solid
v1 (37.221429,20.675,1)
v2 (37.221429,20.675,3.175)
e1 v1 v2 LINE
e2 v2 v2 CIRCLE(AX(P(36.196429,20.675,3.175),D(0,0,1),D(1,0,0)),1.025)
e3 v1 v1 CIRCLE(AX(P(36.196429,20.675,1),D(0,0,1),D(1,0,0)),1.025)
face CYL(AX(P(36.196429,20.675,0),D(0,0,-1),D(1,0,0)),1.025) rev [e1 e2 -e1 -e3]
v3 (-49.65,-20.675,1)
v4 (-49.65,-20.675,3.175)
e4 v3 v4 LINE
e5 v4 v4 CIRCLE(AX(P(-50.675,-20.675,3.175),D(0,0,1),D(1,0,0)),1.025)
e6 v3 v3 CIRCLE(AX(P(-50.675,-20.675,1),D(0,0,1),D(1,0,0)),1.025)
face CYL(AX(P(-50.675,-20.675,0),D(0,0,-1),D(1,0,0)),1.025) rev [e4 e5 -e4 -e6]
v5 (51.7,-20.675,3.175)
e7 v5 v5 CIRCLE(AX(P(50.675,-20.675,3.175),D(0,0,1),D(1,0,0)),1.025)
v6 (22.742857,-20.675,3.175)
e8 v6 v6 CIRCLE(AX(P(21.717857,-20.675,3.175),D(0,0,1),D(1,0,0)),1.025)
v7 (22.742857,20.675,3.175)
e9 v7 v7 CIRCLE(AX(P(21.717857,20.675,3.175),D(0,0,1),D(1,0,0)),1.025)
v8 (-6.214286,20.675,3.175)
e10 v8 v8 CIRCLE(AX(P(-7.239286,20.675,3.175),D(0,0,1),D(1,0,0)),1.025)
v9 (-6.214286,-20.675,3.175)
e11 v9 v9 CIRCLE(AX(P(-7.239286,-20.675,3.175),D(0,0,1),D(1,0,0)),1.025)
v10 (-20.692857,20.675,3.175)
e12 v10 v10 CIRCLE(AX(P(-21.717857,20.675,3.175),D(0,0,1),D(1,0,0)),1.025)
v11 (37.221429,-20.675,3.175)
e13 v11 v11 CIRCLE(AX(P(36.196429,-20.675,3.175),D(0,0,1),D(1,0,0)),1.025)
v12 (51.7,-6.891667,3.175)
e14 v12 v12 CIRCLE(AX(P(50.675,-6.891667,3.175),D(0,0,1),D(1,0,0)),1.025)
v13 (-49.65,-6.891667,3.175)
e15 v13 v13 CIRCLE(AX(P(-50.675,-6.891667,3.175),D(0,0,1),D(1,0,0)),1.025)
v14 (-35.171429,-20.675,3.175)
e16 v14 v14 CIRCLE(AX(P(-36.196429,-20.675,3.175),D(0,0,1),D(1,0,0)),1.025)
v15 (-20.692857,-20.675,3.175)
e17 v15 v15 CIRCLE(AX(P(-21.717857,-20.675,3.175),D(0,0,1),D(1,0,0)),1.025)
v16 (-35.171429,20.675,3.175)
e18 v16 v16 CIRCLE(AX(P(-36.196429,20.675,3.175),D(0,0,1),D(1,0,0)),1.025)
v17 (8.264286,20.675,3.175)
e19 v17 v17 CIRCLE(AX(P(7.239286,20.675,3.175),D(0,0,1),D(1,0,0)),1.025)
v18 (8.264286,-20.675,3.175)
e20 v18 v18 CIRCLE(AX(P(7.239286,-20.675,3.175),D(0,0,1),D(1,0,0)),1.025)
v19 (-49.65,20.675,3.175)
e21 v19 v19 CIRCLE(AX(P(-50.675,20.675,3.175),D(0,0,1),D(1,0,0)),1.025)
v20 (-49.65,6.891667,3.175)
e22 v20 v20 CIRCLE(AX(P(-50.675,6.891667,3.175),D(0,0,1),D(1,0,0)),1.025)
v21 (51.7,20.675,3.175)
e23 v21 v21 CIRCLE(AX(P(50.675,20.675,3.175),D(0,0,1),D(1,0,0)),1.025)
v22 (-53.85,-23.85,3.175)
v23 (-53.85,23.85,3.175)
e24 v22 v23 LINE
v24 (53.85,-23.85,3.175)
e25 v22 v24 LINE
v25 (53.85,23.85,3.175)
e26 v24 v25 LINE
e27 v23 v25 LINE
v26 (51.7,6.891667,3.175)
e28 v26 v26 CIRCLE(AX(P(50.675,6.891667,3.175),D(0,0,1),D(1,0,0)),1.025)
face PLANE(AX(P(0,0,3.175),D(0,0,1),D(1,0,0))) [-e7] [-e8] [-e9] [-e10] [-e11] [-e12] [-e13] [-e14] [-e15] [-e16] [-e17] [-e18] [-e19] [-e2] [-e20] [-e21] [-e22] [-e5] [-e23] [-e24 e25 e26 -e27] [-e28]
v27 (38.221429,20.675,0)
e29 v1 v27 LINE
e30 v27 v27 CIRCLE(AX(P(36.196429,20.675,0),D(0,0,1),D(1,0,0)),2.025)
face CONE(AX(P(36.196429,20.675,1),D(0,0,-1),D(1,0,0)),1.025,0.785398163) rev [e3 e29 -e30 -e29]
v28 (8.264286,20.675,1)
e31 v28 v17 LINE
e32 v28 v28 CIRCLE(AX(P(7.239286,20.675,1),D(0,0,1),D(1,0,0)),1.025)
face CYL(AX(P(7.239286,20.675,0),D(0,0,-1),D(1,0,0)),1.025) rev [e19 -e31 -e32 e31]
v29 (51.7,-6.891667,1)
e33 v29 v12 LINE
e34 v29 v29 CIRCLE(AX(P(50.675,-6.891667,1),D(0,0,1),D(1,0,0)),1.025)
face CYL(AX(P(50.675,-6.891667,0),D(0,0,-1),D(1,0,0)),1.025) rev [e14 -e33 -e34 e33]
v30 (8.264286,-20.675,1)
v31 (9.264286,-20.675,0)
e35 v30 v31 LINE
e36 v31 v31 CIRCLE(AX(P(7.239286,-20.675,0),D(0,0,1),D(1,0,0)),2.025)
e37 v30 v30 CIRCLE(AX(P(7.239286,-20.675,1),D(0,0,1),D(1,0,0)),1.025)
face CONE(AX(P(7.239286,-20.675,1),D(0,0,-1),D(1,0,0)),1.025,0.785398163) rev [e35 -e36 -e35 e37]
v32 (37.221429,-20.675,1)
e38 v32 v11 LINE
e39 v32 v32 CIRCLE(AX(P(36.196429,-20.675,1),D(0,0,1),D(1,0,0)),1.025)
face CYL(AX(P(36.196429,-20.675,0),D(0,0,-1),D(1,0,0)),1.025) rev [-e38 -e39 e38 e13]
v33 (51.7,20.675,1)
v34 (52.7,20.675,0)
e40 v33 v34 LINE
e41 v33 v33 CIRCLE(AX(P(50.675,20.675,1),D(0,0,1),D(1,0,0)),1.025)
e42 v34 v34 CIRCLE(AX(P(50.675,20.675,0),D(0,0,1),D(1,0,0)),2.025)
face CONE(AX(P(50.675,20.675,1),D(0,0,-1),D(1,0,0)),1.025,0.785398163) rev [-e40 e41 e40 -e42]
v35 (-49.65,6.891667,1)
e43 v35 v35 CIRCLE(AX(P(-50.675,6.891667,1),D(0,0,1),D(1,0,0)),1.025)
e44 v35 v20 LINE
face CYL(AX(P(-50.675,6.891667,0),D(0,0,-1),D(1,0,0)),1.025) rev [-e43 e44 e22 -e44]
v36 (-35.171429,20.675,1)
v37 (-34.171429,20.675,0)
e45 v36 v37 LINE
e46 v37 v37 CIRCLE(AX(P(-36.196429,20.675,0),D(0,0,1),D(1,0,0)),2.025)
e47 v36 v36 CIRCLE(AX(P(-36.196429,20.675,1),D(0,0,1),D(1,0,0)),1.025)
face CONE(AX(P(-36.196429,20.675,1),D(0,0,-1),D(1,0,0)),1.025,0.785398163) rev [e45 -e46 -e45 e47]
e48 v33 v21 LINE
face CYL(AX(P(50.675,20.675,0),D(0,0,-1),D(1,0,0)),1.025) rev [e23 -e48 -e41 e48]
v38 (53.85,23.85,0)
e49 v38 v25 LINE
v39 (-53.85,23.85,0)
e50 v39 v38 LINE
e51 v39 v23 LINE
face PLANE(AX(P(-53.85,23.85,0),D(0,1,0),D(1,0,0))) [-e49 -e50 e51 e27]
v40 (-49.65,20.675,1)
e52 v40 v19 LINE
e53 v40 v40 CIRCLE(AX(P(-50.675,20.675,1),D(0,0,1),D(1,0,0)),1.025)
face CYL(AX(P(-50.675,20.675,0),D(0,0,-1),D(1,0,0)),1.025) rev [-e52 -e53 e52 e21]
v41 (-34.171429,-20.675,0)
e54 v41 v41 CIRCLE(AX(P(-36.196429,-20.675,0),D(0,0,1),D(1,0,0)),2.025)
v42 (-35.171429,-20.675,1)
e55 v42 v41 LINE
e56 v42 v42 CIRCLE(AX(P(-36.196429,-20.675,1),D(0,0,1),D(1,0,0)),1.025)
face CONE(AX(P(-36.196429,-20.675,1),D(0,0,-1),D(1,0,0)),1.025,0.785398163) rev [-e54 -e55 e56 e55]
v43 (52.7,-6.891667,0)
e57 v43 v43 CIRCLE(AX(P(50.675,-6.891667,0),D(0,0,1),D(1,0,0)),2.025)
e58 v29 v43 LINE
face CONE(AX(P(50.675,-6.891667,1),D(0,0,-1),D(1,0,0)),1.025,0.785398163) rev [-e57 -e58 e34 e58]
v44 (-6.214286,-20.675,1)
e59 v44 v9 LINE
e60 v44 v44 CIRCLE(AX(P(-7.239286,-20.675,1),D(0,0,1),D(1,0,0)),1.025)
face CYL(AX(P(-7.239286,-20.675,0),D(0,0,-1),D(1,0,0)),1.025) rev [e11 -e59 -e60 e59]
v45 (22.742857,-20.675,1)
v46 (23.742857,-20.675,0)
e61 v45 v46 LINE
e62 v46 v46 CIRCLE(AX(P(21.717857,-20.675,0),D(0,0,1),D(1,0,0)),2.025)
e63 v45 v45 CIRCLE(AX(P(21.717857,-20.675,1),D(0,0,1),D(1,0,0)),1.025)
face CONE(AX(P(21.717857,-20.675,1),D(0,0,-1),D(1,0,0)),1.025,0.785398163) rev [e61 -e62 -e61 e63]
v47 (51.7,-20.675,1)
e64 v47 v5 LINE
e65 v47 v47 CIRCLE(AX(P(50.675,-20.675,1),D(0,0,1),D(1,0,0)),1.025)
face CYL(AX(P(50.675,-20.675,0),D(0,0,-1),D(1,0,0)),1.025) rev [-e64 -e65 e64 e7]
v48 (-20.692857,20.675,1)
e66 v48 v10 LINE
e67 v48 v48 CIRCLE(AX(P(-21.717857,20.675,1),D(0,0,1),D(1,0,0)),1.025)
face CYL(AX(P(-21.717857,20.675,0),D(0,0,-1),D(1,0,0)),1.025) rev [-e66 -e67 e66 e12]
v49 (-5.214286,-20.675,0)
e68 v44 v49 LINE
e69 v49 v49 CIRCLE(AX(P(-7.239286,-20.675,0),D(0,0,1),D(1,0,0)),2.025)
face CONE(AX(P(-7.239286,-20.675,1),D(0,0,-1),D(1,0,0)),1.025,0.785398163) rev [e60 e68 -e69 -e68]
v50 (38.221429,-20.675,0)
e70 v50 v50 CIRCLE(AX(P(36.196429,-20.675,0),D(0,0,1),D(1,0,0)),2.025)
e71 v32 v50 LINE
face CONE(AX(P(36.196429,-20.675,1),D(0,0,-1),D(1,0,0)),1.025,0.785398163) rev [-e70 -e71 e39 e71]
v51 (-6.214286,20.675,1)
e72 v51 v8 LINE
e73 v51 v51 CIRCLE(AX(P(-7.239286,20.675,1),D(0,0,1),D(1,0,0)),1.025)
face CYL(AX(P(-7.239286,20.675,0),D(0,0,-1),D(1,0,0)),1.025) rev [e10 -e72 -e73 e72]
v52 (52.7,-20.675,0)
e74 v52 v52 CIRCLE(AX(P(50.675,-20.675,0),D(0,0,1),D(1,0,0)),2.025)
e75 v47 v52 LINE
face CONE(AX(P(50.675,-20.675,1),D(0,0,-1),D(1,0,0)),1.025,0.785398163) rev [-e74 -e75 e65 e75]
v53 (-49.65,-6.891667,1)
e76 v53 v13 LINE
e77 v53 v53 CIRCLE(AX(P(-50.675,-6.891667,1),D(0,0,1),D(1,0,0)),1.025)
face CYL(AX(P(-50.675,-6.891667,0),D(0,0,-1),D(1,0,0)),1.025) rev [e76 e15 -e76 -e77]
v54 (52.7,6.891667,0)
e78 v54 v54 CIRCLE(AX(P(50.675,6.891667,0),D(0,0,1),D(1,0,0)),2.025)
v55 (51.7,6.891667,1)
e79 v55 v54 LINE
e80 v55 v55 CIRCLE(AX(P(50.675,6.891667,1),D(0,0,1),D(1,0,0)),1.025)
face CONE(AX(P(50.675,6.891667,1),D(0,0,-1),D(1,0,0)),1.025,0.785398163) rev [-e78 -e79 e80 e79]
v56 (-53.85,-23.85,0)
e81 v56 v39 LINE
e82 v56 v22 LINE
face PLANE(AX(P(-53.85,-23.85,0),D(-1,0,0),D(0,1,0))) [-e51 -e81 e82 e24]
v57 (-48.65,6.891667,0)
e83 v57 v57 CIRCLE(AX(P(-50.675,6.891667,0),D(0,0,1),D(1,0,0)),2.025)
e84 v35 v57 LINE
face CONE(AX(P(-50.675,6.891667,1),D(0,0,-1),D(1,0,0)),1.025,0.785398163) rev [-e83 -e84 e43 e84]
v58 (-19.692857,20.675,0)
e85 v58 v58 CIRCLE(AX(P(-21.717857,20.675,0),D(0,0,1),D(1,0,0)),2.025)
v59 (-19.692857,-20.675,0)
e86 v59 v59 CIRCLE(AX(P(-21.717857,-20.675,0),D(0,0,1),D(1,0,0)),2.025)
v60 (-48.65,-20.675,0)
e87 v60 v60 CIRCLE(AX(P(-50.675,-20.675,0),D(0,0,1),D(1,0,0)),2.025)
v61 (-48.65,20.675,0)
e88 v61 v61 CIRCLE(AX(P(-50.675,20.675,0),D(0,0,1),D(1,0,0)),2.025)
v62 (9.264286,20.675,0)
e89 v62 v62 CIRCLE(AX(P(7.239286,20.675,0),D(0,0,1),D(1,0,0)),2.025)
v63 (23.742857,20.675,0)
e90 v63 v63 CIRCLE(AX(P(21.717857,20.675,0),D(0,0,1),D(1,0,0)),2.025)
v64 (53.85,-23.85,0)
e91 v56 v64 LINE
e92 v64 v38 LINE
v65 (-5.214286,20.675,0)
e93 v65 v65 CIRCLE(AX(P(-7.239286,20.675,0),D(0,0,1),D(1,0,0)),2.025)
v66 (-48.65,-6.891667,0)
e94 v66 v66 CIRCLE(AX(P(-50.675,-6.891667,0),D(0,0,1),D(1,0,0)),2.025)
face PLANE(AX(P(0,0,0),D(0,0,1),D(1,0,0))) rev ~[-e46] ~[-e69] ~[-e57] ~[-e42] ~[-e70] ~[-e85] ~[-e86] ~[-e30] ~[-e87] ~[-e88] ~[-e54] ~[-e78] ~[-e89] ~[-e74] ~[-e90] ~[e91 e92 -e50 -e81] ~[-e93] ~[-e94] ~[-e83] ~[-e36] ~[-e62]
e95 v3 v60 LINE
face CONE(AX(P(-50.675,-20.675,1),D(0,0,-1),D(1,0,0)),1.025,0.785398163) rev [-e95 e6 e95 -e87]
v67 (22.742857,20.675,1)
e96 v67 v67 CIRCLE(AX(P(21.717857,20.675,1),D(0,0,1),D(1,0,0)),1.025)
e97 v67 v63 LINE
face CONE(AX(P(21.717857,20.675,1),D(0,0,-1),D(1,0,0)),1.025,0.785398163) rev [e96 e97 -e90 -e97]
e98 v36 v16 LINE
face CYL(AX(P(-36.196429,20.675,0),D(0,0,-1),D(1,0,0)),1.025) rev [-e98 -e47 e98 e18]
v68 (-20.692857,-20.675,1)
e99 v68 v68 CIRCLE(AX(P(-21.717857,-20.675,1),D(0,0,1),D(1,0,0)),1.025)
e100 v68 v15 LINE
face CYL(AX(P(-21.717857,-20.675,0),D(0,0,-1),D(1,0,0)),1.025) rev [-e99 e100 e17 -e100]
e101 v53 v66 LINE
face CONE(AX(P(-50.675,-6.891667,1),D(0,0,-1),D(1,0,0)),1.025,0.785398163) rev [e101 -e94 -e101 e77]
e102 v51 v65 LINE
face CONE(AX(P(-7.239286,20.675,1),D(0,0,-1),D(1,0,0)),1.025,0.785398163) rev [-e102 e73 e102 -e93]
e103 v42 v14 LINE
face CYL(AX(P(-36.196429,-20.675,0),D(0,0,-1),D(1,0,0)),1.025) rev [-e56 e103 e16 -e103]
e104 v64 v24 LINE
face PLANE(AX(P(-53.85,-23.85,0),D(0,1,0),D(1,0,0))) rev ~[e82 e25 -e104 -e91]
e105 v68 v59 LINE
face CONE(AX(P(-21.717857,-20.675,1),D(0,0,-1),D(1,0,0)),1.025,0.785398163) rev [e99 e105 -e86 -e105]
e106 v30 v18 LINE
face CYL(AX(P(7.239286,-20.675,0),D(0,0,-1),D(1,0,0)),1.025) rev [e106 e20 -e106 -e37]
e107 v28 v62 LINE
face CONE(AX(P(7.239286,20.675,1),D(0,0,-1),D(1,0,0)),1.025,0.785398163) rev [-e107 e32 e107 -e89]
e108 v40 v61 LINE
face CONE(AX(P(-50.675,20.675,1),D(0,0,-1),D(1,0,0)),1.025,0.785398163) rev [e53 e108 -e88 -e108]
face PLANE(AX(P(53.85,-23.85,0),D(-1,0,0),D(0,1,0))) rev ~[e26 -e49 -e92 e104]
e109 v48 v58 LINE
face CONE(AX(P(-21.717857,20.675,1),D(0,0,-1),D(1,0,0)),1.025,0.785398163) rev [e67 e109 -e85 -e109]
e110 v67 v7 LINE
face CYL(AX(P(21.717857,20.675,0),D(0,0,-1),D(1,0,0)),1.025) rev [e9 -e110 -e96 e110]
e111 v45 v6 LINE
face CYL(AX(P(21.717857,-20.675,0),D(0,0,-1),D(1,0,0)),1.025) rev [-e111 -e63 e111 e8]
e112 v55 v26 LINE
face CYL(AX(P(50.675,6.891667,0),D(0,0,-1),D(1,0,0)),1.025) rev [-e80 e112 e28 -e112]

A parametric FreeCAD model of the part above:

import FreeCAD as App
import Part
import Sketcher

V = App.Vector
Q = App.Units.Quantity


def edges_at(feature, points):
    """Names of the edges that pass closest to the given points."""
    edges = feature.Shape.Edges
    near = lambda p: min(range(len(edges)), key=lambda i: edges[i].distToShape(Part.Vertex(*p))[0])
    return sorted({f"Edge{near(p) + 1}" for p in points})


def add_polygon(sketch, points):
    """Adds a closed chain of lines whose ends are joined by coincident constraints."""
    first, n = sketch.GeometryCount, len(points)
    for a, b in zip(points, points[1:] + points[:1]):
        sketch.addGeometry(Part.LineSegment(App.Vector(*a, 0), App.Vector(*b, 0)), False)
    for i in range(n):
        sketch.addConstraint(Sketcher.Constraint("Coincident", first + i, 2, first + (i + 1) % n, 1))

doc = App.newDocument("Part")
body = doc.addObject("PartDesign::Body", "Body")

# Sketch on XY plane
sketch1 = doc.addObject("Sketcher::SketchObject", "Sketch")
body.addObject(sketch1)
sketch1.AttachmentSupport = (doc.XY_Plane, [""])
sketch1.MapMode = "FlatFace"
add_polygon(sketch1, [(-53.9, 23.9), (-53.9, -23.9), (53.9, -23.9), (53.9, 23.9)])  # lines 0-3
sketch1.addGeometry(Part.Circle(V(-50.7, -20.7, 0), V(0, 0, 1), 1), False)  # 4
sketch1.addGeometry(Part.Circle(V(-36.2, -20.7, 0), V(0, 0, 1), 1), False)  # 5
sketch1.addGeometry(Part.Circle(V(-21.7, -20.7, 0), V(0, 0, 1), 1), False)  # 6
sketch1.addGeometry(Part.Circle(V(-7.2, -20.7, 0), V(0, 0, 1), 1), False)  # 7
sketch1.addGeometry(Part.Circle(V(-50.7, -6.9, 0), V(0, 0, 1), 1), False)  # 8
sketch1.addGeometry(Part.Circle(V(7.2, -20.7, 0), V(0, 0, 1), 1), False)  # 9
sketch1.addGeometry(Part.Circle(V(21.7, -20.7, 0), V(0, 0, 1), 1), False)  # 10
sketch1.addGeometry(Part.Circle(V(36.2, -20.7, 0), V(0, 0, 1), 1), False)  # 11
sketch1.addGeometry(Part.Circle(V(50.7, -20.7, 0), V(0, 0, 1), 1), False)  # 12
sketch1.addGeometry(Part.Circle(V(50.7, -6.9, 0), V(0, 0, 1), 1), False)  # 13
sketch1.addGeometry(Part.Circle(V(-50.7, 6.9, 0), V(0, 0, 1), 1), False)  # 14
sketch1.addGeometry(Part.Circle(V(-50.7, 20.7, 0), V(0, 0, 1), 1), False)  # 15
sketch1.addGeometry(Part.Circle(V(-36.2, 20.7, 0), V(0, 0, 1), 1), False)  # 16
sketch1.addGeometry(Part.Circle(V(-21.7, 20.7, 0), V(0, 0, 1), 1), False)  # 17
sketch1.addGeometry(Part.Circle(V(-7.2, 20.7, 0), V(0, 0, 1), 1), False)  # 18
sketch1.addGeometry(Part.Circle(V(50.7, 6.9, 0), V(0, 0, 1), 1), False)  # 19
sketch1.addGeometry(Part.Circle(V(7.2, 20.7, 0), V(0, 0, 1), 1), False)  # 20
sketch1.addGeometry(Part.Circle(V(21.7, 20.7, 0), V(0, 0, 1), 1), False)  # 21
sketch1.addGeometry(Part.Circle(V(36.2, 20.7, 0), V(0, 0, 1), 1), False)  # 22
sketch1.addGeometry(Part.Circle(V(50.7, 20.7, 0), V(0, 0, 1), 1), False)  # 23
sketch1.addConstraint([
    Sketcher.Constraint("Vertical", 0),
    Sketcher.Constraint("Horizontal", 1),
    Sketcher.Constraint("Vertical", 2),
    Sketcher.Constraint("Horizontal", 3),
    Sketcher.Constraint("Equal", 4, 5),
    Sketcher.Constraint("Equal", 5, 6),
    Sketcher.Constraint("Equal", 6, 7),
    Sketcher.Constraint("Equal", 7, 8),
    Sketcher.Constraint("Equal", 8, 9),
    Sketcher.Constraint("Equal", 9, 10),
    Sketcher.Constraint("Equal", 10, 11),
    Sketcher.Constraint("Equal", 11, 12),
    Sketcher.Constraint("Equal", 12, 13),
    Sketcher.Constraint("Equal", 13, 14),
    Sketcher.Constraint("Equal", 14, 15),
    Sketcher.Constraint("Equal", 15, 16),
    Sketcher.Constraint("Equal", 16, 17),
    Sketcher.Constraint("Equal", 17, 18),
    Sketcher.Constraint("Equal", 18, 19),
    Sketcher.Constraint("Equal", 19, 20),
    Sketcher.Constraint("Equal", 20, 21),
    Sketcher.Constraint("Equal", 21, 22),
    Sketcher.Constraint("Equal", 22, 23),
    Sketcher.Constraint("Symmetric", 13, 3, 14, 3, -1, 1),
    Sketcher.Constraint("Symmetric", 12, 3, 15, 3, -1, 1),
    Sketcher.Constraint("Symmetric", 11, 3, 16, 3, -1, 1),
    Sketcher.Constraint("Symmetric", 10, 3, 17, 3, -1, 1),
    Sketcher.Constraint("Symmetric", 9, 3, 18, 3, -1, 1),
    Sketcher.Constraint("Symmetric", 8, 3, 19, 3, -1, 1),
    Sketcher.Constraint("Symmetric", 7, 3, 20, 3, -1, 1),
    Sketcher.Constraint("Symmetric", 6, 3, 21, 3, -1, 1),
    Sketcher.Constraint("Symmetric", 5, 3, 22, 3, -1, 1),
    Sketcher.Constraint("Symmetric", 4, 3, 23, 3, -1, 1),
    Sketcher.Constraint("Symmetric", 0, 2, 2, 2, -1, 1),
    Sketcher.Constraint("Symmetric", 7, 3, 9, 3, -2),
    Sketcher.Constraint("Symmetric", 6, 3, 10, 3, -2),
    Sketcher.Constraint("Symmetric", 5, 3, 11, 3, -2),
    Sketcher.Constraint("Symmetric", 4, 3, 12, 3, -2),
    Sketcher.Constraint("Symmetric", 8, 3, 13, 3, -2),
    Sketcher.Constraint("Horizontal", 4, 3, 5, 3),
    Sketcher.Constraint("Horizontal", 5, 3, 6, 3),
    Sketcher.Constraint("Horizontal", 6, 3, 7, 3),
    Sketcher.Constraint("Vertical", 4, 3, 8, 3),
    Sketcher.Constraint("Diameter", 4, Q("2.05 mm")),
    Sketcher.Constraint("DistanceX", 1, 1, 1, 2, Q("107.7 mm")),
    Sketcher.Constraint("DistanceY", 0, 2, 0, 1, Q("47.7 mm")),
    Sketcher.Constraint("DistanceY", 4, 3, 15, 3, Q("41.35 mm")),
    Sketcher.Constraint("DistanceX", 4, 3, -1, 1, Q("50.675 mm")),
    Sketcher.Constraint("DistanceX", 5, 3, -1, 1, Q("36.196429 mm")),
    Sketcher.Constraint("DistanceX", 5, 3, 6, 3, Q("14.478571 mm")),
    Sketcher.Constraint("DistanceX", 6, 3, 7, 3, Q("14.478571 mm")),
    Sketcher.Constraint("DistanceY", 8, 3, -1, 1, Q("6.891667 mm")),
])
pad1 = doc.addObject("PartDesign::Pad", "Pad")
body.addObject(pad1)
pad1.Profile = sketch1
pad1.Length = 3.175
doc.recompute()

chamfer = doc.addObject("PartDesign::Chamfer", "Chamfer")
body.addObject(chamfer)
chamfer.Base = (pad1, edges_at(pad1, [
    (-51.7, 20.675, 0),
    (49.65, 20.675, 0),
    (-51.7, -20.675, 0),
    (49.65, -20.675, 0),
    (-8.264, 20.675, 0),
    (-8.264, -20.675, 0),
    (-37.221, 20.675, 0),
    (-22.743, 20.675, 0),
    (6.214, 20.675, 0),
    (20.693, 20.675, 0),
    (-51.7, 6.892, 0),
    (-51.7, -6.892, 0),
    (49.65, 6.892, 0),
    (49.65, -6.892, 0),
    (6.214, -20.675, 0),
    (20.693, -20.675, 0),
    (-22.743, -20.675, 0),
    (-37.221, -20.675, 0),
    (35.171, 20.675, 0),
    (35.171, -20.675, 0),
]))
chamfer.Size = 1

doc.recompute()
